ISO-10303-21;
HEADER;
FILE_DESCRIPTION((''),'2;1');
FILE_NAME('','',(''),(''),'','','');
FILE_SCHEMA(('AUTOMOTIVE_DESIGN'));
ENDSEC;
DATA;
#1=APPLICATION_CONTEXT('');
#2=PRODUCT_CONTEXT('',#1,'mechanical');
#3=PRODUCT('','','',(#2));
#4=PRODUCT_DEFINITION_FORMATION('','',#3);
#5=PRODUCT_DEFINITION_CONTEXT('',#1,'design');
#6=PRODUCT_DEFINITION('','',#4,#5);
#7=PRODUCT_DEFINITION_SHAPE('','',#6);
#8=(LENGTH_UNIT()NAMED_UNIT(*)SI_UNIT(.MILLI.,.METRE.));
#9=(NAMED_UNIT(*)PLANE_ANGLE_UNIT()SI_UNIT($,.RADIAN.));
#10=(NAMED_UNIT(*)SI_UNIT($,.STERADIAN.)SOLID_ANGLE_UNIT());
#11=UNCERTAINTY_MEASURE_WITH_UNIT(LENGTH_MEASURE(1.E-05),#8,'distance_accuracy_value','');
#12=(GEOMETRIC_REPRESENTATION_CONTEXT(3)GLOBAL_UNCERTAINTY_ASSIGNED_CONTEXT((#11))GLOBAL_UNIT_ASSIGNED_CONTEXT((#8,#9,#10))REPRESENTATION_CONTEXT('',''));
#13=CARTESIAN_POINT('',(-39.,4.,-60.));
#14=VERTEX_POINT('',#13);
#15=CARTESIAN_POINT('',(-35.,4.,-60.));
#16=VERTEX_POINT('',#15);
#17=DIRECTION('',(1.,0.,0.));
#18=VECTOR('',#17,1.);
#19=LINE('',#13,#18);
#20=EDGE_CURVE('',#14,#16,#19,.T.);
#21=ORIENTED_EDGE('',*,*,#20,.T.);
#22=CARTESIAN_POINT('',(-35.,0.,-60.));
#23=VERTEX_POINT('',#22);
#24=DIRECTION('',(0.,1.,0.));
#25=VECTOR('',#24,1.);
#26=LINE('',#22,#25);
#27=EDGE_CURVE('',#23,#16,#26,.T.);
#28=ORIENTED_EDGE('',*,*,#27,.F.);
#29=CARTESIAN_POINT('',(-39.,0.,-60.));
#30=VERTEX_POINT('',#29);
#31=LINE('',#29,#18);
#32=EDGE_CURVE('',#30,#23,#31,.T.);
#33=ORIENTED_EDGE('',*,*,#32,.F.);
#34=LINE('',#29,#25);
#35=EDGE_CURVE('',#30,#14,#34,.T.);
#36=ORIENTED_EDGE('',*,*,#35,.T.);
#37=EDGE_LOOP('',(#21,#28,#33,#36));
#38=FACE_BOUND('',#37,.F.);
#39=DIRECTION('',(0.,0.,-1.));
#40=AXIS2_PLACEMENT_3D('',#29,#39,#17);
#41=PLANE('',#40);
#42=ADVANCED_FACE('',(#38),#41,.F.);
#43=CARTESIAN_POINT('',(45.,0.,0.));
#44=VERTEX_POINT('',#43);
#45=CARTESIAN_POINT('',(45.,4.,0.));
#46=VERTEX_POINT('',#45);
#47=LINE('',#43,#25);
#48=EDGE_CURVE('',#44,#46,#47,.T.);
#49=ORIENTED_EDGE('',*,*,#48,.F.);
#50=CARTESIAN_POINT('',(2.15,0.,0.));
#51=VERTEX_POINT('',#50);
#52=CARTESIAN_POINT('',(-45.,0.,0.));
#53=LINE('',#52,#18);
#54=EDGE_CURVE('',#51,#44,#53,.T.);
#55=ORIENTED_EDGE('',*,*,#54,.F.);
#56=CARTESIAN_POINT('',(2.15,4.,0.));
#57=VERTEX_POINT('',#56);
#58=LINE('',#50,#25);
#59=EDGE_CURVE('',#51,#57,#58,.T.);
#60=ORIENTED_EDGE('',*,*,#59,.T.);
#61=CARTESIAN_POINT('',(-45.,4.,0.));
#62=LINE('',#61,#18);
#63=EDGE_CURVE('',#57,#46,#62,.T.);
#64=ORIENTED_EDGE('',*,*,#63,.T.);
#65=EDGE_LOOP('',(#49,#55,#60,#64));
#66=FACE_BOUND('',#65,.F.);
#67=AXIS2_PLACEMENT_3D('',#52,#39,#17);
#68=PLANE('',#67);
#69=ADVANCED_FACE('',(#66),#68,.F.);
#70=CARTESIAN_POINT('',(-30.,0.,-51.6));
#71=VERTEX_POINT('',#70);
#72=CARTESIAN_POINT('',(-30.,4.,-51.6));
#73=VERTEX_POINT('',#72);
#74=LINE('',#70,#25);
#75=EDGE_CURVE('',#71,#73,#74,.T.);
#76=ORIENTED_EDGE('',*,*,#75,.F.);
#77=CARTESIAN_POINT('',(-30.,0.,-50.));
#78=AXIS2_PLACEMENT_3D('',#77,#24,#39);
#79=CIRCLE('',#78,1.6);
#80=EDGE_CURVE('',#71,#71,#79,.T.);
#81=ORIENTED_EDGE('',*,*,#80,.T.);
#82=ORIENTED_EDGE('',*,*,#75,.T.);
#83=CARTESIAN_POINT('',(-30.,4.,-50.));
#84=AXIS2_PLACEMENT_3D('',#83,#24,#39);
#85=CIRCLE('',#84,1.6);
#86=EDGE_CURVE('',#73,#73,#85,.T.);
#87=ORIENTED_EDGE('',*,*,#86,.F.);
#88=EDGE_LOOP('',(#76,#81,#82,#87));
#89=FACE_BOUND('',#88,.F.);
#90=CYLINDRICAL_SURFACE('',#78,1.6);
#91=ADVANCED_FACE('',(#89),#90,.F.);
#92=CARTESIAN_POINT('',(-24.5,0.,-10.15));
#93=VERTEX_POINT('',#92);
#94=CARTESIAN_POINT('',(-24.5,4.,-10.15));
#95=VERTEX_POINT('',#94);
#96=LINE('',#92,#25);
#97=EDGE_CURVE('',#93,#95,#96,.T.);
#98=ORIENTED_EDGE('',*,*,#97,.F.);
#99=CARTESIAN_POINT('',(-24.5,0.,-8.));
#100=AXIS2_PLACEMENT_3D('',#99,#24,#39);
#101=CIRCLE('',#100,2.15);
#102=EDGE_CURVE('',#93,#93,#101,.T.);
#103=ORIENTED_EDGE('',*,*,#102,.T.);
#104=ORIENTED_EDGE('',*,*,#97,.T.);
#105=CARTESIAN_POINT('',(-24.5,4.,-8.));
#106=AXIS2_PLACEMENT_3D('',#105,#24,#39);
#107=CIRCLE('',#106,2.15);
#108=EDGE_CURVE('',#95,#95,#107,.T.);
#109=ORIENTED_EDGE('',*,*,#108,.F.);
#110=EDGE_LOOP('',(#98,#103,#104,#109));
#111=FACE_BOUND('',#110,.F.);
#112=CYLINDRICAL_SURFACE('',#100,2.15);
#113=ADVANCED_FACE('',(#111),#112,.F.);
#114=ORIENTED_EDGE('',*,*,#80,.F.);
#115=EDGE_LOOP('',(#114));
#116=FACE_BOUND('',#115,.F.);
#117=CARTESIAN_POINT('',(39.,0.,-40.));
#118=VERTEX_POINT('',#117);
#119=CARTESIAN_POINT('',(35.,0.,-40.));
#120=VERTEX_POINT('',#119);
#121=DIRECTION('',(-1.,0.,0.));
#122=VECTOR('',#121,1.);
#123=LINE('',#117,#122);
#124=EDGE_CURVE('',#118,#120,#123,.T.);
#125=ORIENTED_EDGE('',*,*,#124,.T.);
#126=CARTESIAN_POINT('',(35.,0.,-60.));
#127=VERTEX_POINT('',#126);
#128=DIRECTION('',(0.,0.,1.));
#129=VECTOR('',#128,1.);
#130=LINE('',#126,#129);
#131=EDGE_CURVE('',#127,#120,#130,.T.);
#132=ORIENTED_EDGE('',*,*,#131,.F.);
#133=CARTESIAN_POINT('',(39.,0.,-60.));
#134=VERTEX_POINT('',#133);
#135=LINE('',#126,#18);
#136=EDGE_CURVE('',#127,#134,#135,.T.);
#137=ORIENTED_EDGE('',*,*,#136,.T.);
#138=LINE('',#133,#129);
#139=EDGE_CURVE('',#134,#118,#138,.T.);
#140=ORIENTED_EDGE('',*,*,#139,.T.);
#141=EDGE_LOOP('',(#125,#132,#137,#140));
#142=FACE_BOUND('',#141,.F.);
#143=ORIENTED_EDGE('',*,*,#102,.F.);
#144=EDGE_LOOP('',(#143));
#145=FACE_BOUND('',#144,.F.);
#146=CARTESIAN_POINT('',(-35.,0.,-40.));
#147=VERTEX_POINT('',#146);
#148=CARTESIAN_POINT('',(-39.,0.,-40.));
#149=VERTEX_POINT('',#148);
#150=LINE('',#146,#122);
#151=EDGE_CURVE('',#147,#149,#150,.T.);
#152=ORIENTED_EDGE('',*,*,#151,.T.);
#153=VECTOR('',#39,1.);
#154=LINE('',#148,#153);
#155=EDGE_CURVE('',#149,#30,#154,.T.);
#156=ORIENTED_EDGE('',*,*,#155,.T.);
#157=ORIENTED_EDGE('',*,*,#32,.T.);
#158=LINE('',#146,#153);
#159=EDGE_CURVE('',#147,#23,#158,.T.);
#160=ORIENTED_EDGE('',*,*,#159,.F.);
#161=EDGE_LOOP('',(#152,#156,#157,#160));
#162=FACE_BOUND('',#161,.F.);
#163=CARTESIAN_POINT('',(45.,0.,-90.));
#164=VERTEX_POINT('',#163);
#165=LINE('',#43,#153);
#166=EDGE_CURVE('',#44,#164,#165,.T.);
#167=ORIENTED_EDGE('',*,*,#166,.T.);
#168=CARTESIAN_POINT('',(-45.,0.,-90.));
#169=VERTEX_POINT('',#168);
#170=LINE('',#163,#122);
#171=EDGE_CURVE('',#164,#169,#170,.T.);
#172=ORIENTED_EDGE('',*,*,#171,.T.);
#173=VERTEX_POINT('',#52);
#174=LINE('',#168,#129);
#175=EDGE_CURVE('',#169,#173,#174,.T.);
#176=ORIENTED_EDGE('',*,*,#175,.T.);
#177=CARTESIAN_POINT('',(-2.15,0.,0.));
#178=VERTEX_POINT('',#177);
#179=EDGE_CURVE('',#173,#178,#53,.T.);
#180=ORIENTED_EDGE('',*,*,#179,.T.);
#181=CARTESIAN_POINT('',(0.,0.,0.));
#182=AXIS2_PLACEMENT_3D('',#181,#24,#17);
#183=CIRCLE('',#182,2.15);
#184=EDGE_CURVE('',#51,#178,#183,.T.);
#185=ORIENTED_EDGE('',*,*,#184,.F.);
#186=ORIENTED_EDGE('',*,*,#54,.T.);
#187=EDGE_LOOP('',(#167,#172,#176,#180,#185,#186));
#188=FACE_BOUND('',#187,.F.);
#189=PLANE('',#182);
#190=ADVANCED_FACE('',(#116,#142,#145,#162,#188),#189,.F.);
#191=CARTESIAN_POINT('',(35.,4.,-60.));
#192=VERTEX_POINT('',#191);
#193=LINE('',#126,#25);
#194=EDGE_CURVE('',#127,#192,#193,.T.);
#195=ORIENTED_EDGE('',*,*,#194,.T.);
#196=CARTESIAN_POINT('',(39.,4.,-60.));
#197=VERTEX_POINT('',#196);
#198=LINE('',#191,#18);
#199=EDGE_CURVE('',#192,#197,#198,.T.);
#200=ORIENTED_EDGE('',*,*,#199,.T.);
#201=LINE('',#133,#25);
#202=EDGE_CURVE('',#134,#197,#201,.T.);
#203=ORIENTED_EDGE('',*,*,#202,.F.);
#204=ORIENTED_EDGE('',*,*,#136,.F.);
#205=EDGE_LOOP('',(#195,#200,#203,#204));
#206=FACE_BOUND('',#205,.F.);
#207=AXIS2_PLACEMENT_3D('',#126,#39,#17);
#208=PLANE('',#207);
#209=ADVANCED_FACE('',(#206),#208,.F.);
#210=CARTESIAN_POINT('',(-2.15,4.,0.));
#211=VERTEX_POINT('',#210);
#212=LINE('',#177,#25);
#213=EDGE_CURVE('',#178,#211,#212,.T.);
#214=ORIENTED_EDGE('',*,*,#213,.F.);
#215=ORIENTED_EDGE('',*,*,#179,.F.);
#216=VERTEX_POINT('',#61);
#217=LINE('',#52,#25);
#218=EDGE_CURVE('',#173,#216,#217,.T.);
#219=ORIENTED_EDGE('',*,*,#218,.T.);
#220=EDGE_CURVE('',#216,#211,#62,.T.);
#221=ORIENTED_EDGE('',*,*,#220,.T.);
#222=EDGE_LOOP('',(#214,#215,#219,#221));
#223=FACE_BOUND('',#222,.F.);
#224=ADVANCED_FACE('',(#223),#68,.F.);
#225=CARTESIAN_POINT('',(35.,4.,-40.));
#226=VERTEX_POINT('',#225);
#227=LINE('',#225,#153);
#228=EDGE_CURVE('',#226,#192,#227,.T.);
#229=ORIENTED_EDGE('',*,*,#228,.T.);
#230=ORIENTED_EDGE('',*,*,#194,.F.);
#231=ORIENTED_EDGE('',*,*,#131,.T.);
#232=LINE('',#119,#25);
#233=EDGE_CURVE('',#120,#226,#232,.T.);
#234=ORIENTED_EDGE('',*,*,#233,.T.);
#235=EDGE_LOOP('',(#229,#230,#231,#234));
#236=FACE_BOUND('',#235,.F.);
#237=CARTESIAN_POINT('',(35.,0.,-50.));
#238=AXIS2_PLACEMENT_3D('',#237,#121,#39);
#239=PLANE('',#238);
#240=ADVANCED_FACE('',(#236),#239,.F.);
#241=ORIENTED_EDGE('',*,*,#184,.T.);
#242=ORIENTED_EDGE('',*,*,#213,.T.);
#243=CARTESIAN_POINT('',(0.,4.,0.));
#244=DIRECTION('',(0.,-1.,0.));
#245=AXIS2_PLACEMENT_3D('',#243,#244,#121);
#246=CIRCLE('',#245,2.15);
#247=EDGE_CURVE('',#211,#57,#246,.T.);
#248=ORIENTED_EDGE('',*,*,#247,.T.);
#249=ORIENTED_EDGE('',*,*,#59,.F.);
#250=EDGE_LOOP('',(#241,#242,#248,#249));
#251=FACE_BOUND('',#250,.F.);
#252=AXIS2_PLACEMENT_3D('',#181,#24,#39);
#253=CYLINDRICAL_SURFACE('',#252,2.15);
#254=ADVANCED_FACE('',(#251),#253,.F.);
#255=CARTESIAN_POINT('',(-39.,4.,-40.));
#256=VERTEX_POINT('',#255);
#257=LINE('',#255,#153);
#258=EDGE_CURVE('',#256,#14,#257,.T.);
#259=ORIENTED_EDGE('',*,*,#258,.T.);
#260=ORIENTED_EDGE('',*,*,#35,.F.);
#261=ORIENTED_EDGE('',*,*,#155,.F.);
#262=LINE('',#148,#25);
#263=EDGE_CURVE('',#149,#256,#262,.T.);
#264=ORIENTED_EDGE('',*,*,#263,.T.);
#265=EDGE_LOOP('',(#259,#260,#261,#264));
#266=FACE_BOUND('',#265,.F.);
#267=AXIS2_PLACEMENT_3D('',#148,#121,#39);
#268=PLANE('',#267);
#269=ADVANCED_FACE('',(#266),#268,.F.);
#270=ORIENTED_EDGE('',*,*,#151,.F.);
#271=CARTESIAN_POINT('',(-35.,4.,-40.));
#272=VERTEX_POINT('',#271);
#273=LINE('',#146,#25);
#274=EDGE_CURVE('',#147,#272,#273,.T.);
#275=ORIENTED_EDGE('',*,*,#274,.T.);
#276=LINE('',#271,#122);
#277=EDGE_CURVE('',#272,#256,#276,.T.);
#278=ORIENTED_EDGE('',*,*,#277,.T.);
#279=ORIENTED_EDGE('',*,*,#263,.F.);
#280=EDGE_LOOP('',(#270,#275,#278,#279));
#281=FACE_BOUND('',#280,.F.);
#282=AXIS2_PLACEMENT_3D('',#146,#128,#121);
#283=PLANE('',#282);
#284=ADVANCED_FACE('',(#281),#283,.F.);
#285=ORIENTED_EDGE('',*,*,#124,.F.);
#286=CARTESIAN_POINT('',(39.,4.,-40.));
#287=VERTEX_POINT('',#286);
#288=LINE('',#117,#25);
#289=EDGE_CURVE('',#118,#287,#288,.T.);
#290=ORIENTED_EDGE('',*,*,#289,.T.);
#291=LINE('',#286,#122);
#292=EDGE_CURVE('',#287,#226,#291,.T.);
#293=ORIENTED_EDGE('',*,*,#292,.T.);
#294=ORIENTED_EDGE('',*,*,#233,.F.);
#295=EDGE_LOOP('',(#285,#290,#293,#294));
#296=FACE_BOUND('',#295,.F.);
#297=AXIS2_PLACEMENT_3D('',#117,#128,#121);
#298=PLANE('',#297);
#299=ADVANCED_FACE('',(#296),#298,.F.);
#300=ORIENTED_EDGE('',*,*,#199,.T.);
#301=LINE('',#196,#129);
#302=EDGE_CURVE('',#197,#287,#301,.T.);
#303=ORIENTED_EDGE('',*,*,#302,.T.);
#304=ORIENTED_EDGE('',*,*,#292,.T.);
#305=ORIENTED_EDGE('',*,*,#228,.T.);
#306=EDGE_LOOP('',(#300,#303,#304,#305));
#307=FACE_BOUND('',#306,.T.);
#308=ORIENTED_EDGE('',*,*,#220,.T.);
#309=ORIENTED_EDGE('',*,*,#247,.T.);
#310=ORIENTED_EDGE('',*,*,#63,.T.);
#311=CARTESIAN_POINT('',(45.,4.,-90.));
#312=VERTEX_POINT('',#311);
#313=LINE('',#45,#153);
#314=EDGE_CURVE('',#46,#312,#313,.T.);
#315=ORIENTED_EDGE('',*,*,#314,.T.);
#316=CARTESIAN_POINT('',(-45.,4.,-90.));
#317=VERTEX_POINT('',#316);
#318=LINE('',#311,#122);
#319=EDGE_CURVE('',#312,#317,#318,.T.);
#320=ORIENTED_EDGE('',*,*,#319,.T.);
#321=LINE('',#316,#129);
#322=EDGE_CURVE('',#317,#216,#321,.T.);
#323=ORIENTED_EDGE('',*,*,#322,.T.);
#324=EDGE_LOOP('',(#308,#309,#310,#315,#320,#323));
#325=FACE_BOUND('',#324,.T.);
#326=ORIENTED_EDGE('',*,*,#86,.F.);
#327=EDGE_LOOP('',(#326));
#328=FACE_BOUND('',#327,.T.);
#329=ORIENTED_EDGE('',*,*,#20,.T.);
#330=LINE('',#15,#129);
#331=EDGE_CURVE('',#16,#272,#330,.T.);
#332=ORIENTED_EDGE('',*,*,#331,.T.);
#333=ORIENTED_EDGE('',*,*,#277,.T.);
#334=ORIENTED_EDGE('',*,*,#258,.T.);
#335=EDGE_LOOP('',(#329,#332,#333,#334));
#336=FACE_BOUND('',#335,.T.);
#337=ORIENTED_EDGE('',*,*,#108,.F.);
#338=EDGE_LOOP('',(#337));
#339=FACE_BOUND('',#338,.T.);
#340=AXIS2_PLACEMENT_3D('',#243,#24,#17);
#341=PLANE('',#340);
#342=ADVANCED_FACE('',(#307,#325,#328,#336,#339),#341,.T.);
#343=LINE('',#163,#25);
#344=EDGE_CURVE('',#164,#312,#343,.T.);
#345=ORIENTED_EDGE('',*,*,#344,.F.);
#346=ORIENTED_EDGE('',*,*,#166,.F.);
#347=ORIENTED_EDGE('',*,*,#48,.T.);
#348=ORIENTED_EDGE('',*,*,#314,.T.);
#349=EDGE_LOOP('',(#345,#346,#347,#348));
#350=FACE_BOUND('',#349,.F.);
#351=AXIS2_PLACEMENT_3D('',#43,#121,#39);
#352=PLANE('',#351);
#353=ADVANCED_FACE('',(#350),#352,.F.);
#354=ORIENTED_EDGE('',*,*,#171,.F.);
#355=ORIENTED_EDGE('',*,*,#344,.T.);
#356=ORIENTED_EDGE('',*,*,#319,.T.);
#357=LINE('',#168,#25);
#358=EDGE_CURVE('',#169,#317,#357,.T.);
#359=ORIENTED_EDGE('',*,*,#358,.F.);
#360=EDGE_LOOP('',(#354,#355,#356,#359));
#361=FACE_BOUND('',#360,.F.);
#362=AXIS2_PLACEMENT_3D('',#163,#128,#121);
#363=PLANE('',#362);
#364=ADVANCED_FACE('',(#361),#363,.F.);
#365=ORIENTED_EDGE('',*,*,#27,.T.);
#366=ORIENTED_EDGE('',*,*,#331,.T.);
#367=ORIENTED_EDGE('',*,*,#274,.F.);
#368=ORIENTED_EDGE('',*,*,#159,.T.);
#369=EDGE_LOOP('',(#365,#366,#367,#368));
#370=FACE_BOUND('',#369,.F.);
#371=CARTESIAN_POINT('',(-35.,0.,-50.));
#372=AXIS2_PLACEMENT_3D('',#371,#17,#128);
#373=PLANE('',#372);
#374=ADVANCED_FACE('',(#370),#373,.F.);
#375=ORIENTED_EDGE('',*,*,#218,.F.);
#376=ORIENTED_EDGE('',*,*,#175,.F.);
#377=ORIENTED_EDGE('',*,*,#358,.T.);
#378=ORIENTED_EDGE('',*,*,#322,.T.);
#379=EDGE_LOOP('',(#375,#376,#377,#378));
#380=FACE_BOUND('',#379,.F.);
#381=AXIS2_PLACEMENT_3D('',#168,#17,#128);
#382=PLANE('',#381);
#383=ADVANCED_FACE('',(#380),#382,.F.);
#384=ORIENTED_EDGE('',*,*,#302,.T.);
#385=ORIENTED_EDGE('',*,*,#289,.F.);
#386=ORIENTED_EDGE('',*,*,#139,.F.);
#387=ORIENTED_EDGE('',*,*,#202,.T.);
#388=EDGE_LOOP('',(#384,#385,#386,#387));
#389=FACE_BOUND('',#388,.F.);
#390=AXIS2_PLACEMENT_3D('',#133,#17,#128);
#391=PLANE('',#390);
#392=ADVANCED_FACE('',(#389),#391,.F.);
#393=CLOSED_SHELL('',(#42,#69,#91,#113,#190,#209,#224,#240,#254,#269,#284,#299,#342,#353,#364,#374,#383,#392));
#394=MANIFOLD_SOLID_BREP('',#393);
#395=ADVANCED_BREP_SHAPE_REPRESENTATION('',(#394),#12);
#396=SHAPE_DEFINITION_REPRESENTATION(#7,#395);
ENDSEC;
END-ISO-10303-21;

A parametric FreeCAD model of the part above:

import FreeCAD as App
import Part
import Sketcher

doc = App.newDocument("Part")
body = doc.addObject("PartDesign::Body", "Body")

sketch1 = doc.addObject("Sketcher::SketchObject", "Sketch")
body.addObject(sketch1)
sketch1.AttachmentSupport = (doc.XZ_Plane, [""])
sketch1.MapMode = "FlatFace"
sketch1.addGeometry(Part.LineSegment(App.Vector(-45, -90, 0), App.Vector(-45, 0, 0)), False)
sketch1.addGeometry(Part.LineSegment(App.Vector(-45, 0, 0), App.Vector(45, 0, 0)), False)
sketch1.addGeometry(Part.LineSegment(App.Vector(45, 0, 0), App.Vector(45, -90, 0)), False)
sketch1.addGeometry(Part.LineSegment(App.Vector(45, -90, 0), App.Vector(-45, -90, 0)), False)
sketch1.addGeometry(Part.LineSegment(App.Vector(-39, -40, 0), App.Vector(-39, -60, 0)), False)
sketch1.addGeometry(Part.LineSegment(App.Vector(-39, -60, 0), App.Vector(-35, -60, 0)), False)
sketch1.addGeometry(Part.LineSegment(App.Vector(-35, -60, 0), App.Vector(-35, -40, 0)), False)
sketch1.addGeometry(Part.LineSegment(App.Vector(-35, -40, 0), App.Vector(-39, -40, 0)), False)
sketch1.addGeometry(Part.LineSegment(App.Vector(35, -60, 0), App.Vector(39, -60, 0)), False)
sketch1.addGeometry(Part.LineSegment(App.Vector(39, -60, 0), App.Vector(39, -40, 0)), False)
sketch1.addGeometry(Part.LineSegment(App.Vector(39, -40, 0), App.Vector(35, -40, 0)), False)
sketch1.addGeometry(Part.LineSegment(App.Vector(35, -40, 0), App.Vector(35, -60, 0)), False)
sketch1.addConstraint(Sketcher.Constraint("Coincident", 0, 2, 1, 1))
sketch1.addConstraint(Sketcher.Constraint("Coincident", 1, 2, 2, 1))
sketch1.addConstraint(Sketcher.Constraint("Coincident", 2, 2, 3, 1))
sketch1.addConstraint(Sketcher.Constraint("Coincident", 3, 2, 0, 1))
sketch1.addConstraint(Sketcher.Constraint("Coincident", 4, 2, 5, 1))
sketch1.addConstraint(Sketcher.Constraint("Coincident", 5, 2, 6, 1))
sketch1.addConstraint(Sketcher.Constraint("Coincident", 6, 2, 7, 1))
sketch1.addConstraint(Sketcher.Constraint("Coincident", 7, 2, 4, 1))
sketch1.addConstraint(Sketcher.Constraint("Coincident", 8, 2, 9, 1))
sketch1.addConstraint(Sketcher.Constraint("Coincident", 9, 2, 10, 1))
sketch1.addConstraint(Sketcher.Constraint("Coincident", 10, 2, 11, 1))
sketch1.addConstraint(Sketcher.Constraint("Coincident", 11, 2, 8, 1))
sketch1.addConstraint(Sketcher.Constraint("Vertical", 0))
sketch1.addConstraint(Sketcher.Constraint("Horizontal", 1))
sketch1.addConstraint(Sketcher.Constraint("Vertical", 2))
sketch1.addConstraint(Sketcher.Constraint("Horizontal", 3))
sketch1.addConstraint(Sketcher.Constraint("Vertical", 4))
sketch1.addConstraint(Sketcher.Constraint("Horizontal", 5))
sketch1.addConstraint(Sketcher.Constraint("Vertical", 6))
sketch1.addConstraint(Sketcher.Constraint("Horizontal", 7))
sketch1.addConstraint(Sketcher.Constraint("Horizontal", 8))
sketch1.addConstraint(Sketcher.Constraint("Vertical", 9))
sketch1.addConstraint(Sketcher.Constraint("Horizontal", 10))
sketch1.addConstraint(Sketcher.Constraint("Vertical", 11))
sketch1.addConstraint(Sketcher.Constraint("Symmetric", 0, 2, 1, 2, -1, 1))
sketch1.addConstraint(Sketcher.Constraint("Symmetric", 4, 2, 8, 2, -2))
sketch1.addConstraint(Sketcher.Constraint("Symmetric", 6, 2, 10, 2, -2))
sketch1.addConstraint(Sketcher.Constraint("Equal", 3, 0))
sketch1.addConstraint(Sketcher.Constraint("DistanceX", 1, 1, 1, 2, 90.0))
sketch1.addConstraint(Sketcher.Constraint("DistanceX", 5, 1, 5, 2, 4.0))
sketch1.addConstraint(Sketcher.Constraint("DistanceY", 4, 2, 4, 1, 20.0))
sketch1.addConstraint(Sketcher.Constraint("DistanceX", 5, 2, -1, 1, 35.0))
sketch1.addConstraint(Sketcher.Constraint("DistanceY", 6, 2, -1, 1, 40.0))
pad1 = doc.addObject("PartDesign::Pad", "Pad")
body.addObject(pad1)
pad1.Profile = sketch1
pad1.Length = 4
pad1.Reversed = True

sketch2 = doc.addObject("Sketcher::SketchObject", "Sketch001")
body.addObject(sketch2)
sketch2.AttachmentSupport = (doc.XZ_Plane, [""])
sketch2.MapMode = "FlatFace"
sketch2.addGeometry(Part.Circle(App.Vector(-24.5, -8, 0), App.Vector(0, 0, 1), 2.1), False)
sketch2.addGeometry(Part.Circle(App.Vector(0, 0, 0), App.Vector(0, 0, 1), 2.1), False)
sketch2.addGeometry(Part.Circle(App.Vector(0, 0, 0), App.Vector(0, 0, 1), 2.1), False)
sketch2.addGeometry(Part.Circle(App.Vector(0, 0, 0), App.Vector(0, 0, 1), 2.1), False)
sketch2.addConstraint(Sketcher.Constraint("Coincident", 1, 3, -1, 1))
sketch2.addConstraint(Sketcher.Constraint("Coincident", 2, 3, -1, 1))
sketch2.addConstraint(Sketcher.Constraint("Coincident", 3, 3, -1, 1))
sketch2.addConstraint(Sketcher.Constraint("Equal", 0, 1))
sketch2.addConstraint(Sketcher.Constraint("Equal", 1, 2))
sketch2.addConstraint(Sketcher.Constraint("Equal", 2, 3))
sketch2.addConstraint(Sketcher.Constraint("Diameter", 0, 4.3))
sketch2.addConstraint(Sketcher.Constraint("DistanceY", 0, 3, -1, 1, 8.0))
sketch2.addConstraint(Sketcher.Constraint("DistanceX", 0, 3, -1, 1, 24.5))
doc.recompute()
hole = doc.addObject("PartDesign::Hole", "Hole")
body.addObject(hole)
hole.Profile = sketch2
hole.ThreadType = "None"
hole.Diameter = 4.3
hole.DepthType = "Dimension"
hole.Depth = 4
hole.DrillPoint = "Angled"
hole.DrillPointAngle = 118

sketch3 = doc.addObject("Sketcher::SketchObject", "Sketch002")
body.addObject(sketch3)
sketch3.AttachmentSupport = (doc.XZ_Plane, [""])
sketch3.MapMode = "FlatFace"
sketch3.addGeometry(Part.Circle(App.Vector(-30, -50, 0), App.Vector(0, 0, 1), 1.6), False)
sketch3.addGeometry(Part.Circle(App.Vector(0, 0, 0), App.Vector(0, 0, 1), 1.6), False)
sketch3.addConstraint(Sketcher.Constraint("Coincident", 1, 3, -1, 1))
sketch3.addConstraint(Sketcher.Constraint("Equal", 0, 1))
sketch3.addConstraint(Sketcher.Constraint("Diameter", 0, 3.2))
sketch3.addConstraint(Sketcher.Constraint("DistanceX", 0, 3, -1, 1, 30.0))
sketch3.addConstraint(Sketcher.Constraint("DistanceY", 0, 3, -1, 1, 50.0))
doc.recompute()
hole2 = doc.addObject("PartDesign::Hole", "Hole001")
body.addObject(hole2)
hole2.Profile = sketch3
hole2.ThreadType = "None"
hole2.Diameter = 3.2
hole2.DepthType = "ThroughAll"

doc.recompute()
